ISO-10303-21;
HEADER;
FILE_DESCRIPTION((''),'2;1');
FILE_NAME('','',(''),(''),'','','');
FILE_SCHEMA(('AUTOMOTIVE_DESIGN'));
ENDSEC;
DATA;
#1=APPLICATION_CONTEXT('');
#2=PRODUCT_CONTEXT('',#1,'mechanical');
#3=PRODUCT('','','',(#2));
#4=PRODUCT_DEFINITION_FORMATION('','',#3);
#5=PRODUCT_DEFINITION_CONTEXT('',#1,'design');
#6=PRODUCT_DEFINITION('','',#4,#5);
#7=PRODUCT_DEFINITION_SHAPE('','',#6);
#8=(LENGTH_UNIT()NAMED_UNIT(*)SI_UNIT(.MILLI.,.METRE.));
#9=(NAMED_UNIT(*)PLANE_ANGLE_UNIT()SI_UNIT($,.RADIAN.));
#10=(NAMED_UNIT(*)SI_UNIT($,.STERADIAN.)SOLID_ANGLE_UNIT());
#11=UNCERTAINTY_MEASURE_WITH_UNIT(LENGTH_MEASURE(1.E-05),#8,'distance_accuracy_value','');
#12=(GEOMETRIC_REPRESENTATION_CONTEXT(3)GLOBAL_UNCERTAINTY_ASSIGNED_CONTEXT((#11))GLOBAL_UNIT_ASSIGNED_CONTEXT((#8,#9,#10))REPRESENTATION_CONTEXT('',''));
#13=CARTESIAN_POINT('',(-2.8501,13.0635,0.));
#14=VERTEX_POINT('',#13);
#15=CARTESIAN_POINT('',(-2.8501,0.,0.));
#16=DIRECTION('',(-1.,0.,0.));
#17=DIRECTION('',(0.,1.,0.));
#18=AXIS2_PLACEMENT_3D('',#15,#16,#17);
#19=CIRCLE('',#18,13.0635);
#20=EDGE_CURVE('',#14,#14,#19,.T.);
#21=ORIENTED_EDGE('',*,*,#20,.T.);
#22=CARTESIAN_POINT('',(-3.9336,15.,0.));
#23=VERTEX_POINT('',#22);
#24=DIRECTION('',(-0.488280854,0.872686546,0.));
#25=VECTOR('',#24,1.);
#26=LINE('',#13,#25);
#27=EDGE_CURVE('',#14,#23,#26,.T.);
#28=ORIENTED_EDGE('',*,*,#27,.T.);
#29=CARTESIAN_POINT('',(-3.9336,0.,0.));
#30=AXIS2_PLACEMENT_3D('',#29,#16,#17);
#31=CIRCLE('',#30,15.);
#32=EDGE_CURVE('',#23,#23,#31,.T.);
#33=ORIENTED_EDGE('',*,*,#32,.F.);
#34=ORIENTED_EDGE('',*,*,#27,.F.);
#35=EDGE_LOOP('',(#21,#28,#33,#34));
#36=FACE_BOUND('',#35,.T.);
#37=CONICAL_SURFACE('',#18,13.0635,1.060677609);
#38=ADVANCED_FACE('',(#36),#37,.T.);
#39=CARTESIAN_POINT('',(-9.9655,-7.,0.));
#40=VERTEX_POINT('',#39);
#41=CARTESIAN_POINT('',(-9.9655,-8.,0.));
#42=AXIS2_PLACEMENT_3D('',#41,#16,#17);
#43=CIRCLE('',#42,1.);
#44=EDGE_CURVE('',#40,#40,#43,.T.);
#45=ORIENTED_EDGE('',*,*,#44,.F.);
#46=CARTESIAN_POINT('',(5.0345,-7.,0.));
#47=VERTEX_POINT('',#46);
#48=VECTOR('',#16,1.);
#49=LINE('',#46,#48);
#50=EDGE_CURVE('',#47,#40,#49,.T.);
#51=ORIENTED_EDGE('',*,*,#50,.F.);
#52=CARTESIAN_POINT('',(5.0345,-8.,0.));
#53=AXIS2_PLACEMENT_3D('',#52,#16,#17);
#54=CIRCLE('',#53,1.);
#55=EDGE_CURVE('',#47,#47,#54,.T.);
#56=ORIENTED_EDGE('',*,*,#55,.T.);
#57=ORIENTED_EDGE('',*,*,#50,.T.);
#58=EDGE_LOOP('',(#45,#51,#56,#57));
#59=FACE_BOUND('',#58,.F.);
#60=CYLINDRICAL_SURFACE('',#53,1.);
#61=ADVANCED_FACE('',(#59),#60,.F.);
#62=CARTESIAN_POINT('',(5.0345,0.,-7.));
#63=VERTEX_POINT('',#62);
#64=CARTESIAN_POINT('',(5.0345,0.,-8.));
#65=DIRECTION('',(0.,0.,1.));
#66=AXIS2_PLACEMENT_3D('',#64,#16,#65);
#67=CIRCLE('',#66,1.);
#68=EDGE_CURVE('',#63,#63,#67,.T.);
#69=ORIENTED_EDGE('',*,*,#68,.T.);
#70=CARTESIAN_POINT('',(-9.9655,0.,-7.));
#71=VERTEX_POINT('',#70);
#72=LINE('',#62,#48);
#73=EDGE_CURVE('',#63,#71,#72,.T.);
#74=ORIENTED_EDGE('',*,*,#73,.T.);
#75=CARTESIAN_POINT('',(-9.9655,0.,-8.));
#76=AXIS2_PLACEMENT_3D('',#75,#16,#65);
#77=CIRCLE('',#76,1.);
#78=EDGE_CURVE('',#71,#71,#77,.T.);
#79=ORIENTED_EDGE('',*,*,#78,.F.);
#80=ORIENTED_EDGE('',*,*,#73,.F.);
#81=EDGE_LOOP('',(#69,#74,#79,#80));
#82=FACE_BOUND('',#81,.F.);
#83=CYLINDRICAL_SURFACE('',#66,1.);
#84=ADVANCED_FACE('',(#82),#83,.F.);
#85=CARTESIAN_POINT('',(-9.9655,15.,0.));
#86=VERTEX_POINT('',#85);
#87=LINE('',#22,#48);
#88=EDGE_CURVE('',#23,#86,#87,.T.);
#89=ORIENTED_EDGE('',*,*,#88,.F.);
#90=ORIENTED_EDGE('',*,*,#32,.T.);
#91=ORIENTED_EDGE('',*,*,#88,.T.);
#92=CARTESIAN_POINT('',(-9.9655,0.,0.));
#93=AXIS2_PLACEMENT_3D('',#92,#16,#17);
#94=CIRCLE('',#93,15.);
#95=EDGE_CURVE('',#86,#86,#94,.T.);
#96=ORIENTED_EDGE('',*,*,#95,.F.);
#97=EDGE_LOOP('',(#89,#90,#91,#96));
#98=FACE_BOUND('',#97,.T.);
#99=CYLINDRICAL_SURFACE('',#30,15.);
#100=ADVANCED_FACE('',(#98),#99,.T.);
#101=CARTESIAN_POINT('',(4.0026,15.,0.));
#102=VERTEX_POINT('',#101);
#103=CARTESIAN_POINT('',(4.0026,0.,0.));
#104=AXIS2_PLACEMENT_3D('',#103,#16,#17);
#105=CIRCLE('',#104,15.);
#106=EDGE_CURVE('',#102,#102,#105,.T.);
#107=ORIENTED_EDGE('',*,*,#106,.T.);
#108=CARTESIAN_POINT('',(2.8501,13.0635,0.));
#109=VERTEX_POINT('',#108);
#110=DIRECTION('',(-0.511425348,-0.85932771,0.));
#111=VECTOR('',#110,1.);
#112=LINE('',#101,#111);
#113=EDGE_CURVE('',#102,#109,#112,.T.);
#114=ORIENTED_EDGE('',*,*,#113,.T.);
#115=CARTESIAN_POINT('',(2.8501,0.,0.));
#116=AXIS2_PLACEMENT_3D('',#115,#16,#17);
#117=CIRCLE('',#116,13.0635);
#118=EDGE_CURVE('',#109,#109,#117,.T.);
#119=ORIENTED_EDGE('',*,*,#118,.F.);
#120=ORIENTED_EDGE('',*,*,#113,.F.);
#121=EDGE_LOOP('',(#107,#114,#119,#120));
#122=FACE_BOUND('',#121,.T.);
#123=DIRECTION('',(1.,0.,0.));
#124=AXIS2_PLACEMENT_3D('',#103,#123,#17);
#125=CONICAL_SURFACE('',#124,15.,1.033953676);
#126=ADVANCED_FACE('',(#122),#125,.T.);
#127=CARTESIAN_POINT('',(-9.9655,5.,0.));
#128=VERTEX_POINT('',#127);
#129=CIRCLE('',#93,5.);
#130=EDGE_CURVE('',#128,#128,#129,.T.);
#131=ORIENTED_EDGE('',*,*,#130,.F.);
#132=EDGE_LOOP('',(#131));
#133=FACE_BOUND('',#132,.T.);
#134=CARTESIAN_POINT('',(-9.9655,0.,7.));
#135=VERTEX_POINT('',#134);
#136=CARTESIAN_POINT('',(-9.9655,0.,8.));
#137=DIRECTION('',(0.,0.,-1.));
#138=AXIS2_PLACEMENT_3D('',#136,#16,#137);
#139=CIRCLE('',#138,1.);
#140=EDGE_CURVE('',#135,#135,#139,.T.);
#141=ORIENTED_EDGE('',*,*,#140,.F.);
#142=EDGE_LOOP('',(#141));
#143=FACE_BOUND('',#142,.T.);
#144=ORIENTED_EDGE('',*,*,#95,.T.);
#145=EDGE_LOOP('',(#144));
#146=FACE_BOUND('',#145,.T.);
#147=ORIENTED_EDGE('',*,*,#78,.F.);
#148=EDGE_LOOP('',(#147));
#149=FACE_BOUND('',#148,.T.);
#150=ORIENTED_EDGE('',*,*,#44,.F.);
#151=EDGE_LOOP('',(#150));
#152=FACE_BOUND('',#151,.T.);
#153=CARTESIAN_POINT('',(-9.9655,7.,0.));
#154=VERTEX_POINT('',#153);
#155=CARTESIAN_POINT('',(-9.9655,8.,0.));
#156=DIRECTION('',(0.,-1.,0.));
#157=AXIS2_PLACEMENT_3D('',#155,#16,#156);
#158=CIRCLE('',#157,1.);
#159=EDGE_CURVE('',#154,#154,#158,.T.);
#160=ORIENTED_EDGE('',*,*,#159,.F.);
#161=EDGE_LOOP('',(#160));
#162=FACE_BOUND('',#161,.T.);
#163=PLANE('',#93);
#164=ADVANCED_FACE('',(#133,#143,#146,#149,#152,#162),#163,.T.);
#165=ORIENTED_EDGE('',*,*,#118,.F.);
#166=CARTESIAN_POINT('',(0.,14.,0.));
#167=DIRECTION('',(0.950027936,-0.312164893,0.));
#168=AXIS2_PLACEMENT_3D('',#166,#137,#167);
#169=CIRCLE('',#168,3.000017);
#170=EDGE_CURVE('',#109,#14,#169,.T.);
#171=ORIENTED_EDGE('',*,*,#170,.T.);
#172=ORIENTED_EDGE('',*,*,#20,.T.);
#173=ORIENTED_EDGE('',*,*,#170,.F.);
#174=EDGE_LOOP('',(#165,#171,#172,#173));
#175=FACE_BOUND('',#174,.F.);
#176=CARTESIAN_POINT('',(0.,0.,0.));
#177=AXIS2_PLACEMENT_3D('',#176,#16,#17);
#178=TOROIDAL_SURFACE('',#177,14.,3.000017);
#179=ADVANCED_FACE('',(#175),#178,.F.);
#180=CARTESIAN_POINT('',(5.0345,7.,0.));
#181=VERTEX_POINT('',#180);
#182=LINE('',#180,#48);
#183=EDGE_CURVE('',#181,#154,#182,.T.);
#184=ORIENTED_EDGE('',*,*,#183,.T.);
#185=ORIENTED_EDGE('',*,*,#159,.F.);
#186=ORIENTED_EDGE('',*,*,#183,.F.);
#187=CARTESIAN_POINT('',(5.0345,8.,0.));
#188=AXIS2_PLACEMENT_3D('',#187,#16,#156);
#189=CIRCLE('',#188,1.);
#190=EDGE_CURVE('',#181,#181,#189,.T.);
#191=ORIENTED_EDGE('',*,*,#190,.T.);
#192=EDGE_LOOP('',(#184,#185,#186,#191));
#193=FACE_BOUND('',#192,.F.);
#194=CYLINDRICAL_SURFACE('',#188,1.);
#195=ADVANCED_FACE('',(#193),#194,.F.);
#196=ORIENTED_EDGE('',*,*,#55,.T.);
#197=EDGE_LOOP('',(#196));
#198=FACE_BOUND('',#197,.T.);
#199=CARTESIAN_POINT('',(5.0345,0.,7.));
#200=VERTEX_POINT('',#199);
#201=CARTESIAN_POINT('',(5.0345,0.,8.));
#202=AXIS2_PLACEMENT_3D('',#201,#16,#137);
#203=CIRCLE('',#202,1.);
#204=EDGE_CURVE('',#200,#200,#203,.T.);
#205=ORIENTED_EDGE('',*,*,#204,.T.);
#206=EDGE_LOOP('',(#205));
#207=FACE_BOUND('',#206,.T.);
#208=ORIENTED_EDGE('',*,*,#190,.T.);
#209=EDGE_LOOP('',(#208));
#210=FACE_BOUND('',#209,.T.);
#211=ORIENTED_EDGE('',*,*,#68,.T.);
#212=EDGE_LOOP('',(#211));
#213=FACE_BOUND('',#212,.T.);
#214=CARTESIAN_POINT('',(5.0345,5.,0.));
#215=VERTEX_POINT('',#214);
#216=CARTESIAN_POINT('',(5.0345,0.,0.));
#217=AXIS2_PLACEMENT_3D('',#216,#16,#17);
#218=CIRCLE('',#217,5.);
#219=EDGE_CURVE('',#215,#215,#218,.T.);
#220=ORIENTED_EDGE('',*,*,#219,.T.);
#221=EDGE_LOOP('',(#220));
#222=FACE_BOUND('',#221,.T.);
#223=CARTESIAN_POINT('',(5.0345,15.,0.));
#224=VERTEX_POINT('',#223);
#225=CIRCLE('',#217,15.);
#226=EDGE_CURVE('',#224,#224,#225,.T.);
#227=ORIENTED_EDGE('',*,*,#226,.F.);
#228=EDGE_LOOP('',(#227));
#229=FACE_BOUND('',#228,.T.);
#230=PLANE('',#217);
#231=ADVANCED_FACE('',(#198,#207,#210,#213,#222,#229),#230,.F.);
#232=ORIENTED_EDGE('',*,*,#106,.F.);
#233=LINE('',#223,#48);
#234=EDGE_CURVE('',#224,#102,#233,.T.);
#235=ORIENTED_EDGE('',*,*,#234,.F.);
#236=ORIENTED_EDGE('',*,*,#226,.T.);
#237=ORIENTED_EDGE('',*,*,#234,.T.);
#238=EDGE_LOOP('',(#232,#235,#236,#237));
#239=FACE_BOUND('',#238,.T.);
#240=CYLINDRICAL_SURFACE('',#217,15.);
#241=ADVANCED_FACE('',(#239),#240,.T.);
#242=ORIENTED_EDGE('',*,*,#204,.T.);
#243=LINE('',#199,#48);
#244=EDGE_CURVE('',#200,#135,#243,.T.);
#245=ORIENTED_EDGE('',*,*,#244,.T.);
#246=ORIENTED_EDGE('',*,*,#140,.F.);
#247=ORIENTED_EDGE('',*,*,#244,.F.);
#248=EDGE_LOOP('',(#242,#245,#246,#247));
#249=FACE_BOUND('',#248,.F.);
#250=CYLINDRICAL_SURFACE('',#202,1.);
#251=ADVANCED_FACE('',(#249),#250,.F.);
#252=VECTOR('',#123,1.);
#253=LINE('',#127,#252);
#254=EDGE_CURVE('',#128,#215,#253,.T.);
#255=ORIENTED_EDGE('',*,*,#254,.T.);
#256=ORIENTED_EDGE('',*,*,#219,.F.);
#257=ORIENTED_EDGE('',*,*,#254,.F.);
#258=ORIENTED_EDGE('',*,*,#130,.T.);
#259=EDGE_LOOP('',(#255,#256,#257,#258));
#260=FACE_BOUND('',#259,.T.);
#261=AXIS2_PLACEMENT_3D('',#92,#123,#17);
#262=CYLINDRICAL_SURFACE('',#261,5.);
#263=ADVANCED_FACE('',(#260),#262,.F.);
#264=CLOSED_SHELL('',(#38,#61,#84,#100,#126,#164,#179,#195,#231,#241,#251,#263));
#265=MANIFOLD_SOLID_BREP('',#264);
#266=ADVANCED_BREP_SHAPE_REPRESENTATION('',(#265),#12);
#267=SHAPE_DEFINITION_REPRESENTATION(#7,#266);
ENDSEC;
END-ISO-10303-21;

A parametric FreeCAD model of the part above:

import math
import FreeCAD as App
import Part
import Sketcher

V = App.Vector
Q = App.Units.Quantity

doc = App.newDocument("Part")
body = doc.addObject("PartDesign::Body", "Body")

sketch1 = body.newObject("Sketcher::SketchObject", "Sketch")
sketch1.AttachmentSupport = (doc.getObject("XY_Plane"), [""])
sketch1.MapMode = "FlatFace"
sketch1.addGeometry(Part.LineSegment(V(-3.9, 15, 0), V(-10, 15, 0)), False)
sketch1.addGeometry(Part.LineSegment(V(-10, 15, 0), V(-10, 5, 0)), False)
sketch1.addGeometry(Part.LineSegment(V(-10, 5, 0), V(5, 5, 0)), False)
sketch1.addGeometry(Part.LineSegment(V(5, 5, 0), V(5, 15, 0)), False)
sketch1.addGeometry(Part.LineSegment(V(5, 15, 0), V(4, 15, 0)), False)
sketch1.addGeometry(Part.LineSegment(V(4, 15, 0), V(2.9, 13.1, 0)), False)
sketch1.addGeometry(Part.ArcOfCircle(Part.Circle(V(0, 14, 0), V(0, 0, 1), 3), math.radians(-162), math.radians(-18)), False)
sketch1.addGeometry(Part.LineSegment(V(-2.9, 13.1, 0), V(-3.9, 15, 0)), False)
sketch1.addConstraint(Sketcher.Constraint("Coincident", 0, 2, 1, 1))
sketch1.addConstraint(Sketcher.Constraint("Coincident", 1, 2, 2, 1))
sketch1.addConstraint(Sketcher.Constraint("Coincident", 2, 2, 3, 1))
sketch1.addConstraint(Sketcher.Constraint("Coincident", 3, 2, 4, 1))
sketch1.addConstraint(Sketcher.Constraint("Coincident", 4, 2, 5, 1))
sketch1.addConstraint(Sketcher.Constraint("Coincident", 5, 2, 6, 2))
sketch1.addConstraint(Sketcher.Constraint("Coincident", 6, 1, 7, 1))
sketch1.addConstraint(Sketcher.Constraint("Coincident", 7, 2, 0, 1))
sketch1.addConstraint(Sketcher.Constraint("Horizontal", 0))
sketch1.addConstraint(Sketcher.Constraint("Vertical", 1))
sketch1.addConstraint(Sketcher.Constraint("Horizontal", 2))
sketch1.addConstraint(Sketcher.Constraint("Vertical", 3))
sketch1.addConstraint(Sketcher.Constraint("Horizontal", 4))
sketch1.addConstraint(Sketcher.Constraint("Symmetric", 5, 2, 6, 1, -2))
sketch1.addConstraint(Sketcher.Constraint("Horizontal", 0, 2, 3, 2))
sketch1.addConstraint(Sketcher.Constraint("Radius", 6, Q("3 mm")))
sketch1.addConstraint(Sketcher.Constraint("DistanceY", 1, 2, 1, 1, Q("10 mm")))
sketch1.addConstraint(Sketcher.Constraint("DistanceY", -1, 1, 1, 2, Q("5 mm")))
sketch1.addConstraint(Sketcher.Constraint("DistanceY", 6, 3, 0, 2, Q("1 mm")))
sketch1.addConstraint(Sketcher.Constraint("DistanceX", 2, 1, 2, 2, Q("15 mm")))
sketch1.addConstraint(Sketcher.Constraint("DistanceX", 4, 2, 4, 1, Q("1.032 mm")))
sketch1.addConstraint(Sketcher.Constraint("DistanceX", -1, 1, 4, 2, Q("4.0026 mm")))
sketch1.addConstraint(Sketcher.Constraint("Angle", 5, Q("-120.7588 deg")))
sketch1.addConstraint(Sketcher.Constraint("DistanceX", 0, 2, 0, 1, Q("6.032 mm")))
revolution = body.newObject("PartDesign::Revolution", "Revolution")
revolution.Profile = sketch1
revolution.ReferenceAxis = (sketch1, ["H_Axis"])
revolution.Angle = 360

sketch2 = body.newObject("Sketcher::SketchObject", "Sketch001")
sketch2.AttachmentSupport = (doc.getObject("YZ_Plane"), [""])
sketch2.MapMode = "FlatFace"
sketch2.AttachmentOffset = App.Placement(V(0, 0, 5.0345), App.Rotation())
sketch2.addGeometry(Part.Circle(V(0, 8, 0), V(0, 0, 1), 1), False)
sketch2.addConstraint(Sketcher.Constraint("PointOnObject", 0, 3, -2))
sketch2.addConstraint(Sketcher.Constraint("Diameter", 0, Q("2 mm")))
sketch2.addConstraint(Sketcher.Constraint("DistanceY", -1, 1, 0, 3, Q("8 mm")))
doc.recompute()
hole = body.newObject("PartDesign::Hole", "Hole")
hole.Profile = sketch2
hole.ThreadType = "None"
hole.Diameter = 2
hole.DepthType = "ThroughAll"
doc.recompute()

polarpattern = body.newObject("PartDesign::PolarPattern", "PolarPattern")
polarpattern.Originals = [hole]
polarpattern.Axis = (doc.getObject("X_Axis"), [""])
polarpattern.Angle = 360
polarpattern.Occurrences = 4
body.Tip = polarpattern

doc.recompute()
